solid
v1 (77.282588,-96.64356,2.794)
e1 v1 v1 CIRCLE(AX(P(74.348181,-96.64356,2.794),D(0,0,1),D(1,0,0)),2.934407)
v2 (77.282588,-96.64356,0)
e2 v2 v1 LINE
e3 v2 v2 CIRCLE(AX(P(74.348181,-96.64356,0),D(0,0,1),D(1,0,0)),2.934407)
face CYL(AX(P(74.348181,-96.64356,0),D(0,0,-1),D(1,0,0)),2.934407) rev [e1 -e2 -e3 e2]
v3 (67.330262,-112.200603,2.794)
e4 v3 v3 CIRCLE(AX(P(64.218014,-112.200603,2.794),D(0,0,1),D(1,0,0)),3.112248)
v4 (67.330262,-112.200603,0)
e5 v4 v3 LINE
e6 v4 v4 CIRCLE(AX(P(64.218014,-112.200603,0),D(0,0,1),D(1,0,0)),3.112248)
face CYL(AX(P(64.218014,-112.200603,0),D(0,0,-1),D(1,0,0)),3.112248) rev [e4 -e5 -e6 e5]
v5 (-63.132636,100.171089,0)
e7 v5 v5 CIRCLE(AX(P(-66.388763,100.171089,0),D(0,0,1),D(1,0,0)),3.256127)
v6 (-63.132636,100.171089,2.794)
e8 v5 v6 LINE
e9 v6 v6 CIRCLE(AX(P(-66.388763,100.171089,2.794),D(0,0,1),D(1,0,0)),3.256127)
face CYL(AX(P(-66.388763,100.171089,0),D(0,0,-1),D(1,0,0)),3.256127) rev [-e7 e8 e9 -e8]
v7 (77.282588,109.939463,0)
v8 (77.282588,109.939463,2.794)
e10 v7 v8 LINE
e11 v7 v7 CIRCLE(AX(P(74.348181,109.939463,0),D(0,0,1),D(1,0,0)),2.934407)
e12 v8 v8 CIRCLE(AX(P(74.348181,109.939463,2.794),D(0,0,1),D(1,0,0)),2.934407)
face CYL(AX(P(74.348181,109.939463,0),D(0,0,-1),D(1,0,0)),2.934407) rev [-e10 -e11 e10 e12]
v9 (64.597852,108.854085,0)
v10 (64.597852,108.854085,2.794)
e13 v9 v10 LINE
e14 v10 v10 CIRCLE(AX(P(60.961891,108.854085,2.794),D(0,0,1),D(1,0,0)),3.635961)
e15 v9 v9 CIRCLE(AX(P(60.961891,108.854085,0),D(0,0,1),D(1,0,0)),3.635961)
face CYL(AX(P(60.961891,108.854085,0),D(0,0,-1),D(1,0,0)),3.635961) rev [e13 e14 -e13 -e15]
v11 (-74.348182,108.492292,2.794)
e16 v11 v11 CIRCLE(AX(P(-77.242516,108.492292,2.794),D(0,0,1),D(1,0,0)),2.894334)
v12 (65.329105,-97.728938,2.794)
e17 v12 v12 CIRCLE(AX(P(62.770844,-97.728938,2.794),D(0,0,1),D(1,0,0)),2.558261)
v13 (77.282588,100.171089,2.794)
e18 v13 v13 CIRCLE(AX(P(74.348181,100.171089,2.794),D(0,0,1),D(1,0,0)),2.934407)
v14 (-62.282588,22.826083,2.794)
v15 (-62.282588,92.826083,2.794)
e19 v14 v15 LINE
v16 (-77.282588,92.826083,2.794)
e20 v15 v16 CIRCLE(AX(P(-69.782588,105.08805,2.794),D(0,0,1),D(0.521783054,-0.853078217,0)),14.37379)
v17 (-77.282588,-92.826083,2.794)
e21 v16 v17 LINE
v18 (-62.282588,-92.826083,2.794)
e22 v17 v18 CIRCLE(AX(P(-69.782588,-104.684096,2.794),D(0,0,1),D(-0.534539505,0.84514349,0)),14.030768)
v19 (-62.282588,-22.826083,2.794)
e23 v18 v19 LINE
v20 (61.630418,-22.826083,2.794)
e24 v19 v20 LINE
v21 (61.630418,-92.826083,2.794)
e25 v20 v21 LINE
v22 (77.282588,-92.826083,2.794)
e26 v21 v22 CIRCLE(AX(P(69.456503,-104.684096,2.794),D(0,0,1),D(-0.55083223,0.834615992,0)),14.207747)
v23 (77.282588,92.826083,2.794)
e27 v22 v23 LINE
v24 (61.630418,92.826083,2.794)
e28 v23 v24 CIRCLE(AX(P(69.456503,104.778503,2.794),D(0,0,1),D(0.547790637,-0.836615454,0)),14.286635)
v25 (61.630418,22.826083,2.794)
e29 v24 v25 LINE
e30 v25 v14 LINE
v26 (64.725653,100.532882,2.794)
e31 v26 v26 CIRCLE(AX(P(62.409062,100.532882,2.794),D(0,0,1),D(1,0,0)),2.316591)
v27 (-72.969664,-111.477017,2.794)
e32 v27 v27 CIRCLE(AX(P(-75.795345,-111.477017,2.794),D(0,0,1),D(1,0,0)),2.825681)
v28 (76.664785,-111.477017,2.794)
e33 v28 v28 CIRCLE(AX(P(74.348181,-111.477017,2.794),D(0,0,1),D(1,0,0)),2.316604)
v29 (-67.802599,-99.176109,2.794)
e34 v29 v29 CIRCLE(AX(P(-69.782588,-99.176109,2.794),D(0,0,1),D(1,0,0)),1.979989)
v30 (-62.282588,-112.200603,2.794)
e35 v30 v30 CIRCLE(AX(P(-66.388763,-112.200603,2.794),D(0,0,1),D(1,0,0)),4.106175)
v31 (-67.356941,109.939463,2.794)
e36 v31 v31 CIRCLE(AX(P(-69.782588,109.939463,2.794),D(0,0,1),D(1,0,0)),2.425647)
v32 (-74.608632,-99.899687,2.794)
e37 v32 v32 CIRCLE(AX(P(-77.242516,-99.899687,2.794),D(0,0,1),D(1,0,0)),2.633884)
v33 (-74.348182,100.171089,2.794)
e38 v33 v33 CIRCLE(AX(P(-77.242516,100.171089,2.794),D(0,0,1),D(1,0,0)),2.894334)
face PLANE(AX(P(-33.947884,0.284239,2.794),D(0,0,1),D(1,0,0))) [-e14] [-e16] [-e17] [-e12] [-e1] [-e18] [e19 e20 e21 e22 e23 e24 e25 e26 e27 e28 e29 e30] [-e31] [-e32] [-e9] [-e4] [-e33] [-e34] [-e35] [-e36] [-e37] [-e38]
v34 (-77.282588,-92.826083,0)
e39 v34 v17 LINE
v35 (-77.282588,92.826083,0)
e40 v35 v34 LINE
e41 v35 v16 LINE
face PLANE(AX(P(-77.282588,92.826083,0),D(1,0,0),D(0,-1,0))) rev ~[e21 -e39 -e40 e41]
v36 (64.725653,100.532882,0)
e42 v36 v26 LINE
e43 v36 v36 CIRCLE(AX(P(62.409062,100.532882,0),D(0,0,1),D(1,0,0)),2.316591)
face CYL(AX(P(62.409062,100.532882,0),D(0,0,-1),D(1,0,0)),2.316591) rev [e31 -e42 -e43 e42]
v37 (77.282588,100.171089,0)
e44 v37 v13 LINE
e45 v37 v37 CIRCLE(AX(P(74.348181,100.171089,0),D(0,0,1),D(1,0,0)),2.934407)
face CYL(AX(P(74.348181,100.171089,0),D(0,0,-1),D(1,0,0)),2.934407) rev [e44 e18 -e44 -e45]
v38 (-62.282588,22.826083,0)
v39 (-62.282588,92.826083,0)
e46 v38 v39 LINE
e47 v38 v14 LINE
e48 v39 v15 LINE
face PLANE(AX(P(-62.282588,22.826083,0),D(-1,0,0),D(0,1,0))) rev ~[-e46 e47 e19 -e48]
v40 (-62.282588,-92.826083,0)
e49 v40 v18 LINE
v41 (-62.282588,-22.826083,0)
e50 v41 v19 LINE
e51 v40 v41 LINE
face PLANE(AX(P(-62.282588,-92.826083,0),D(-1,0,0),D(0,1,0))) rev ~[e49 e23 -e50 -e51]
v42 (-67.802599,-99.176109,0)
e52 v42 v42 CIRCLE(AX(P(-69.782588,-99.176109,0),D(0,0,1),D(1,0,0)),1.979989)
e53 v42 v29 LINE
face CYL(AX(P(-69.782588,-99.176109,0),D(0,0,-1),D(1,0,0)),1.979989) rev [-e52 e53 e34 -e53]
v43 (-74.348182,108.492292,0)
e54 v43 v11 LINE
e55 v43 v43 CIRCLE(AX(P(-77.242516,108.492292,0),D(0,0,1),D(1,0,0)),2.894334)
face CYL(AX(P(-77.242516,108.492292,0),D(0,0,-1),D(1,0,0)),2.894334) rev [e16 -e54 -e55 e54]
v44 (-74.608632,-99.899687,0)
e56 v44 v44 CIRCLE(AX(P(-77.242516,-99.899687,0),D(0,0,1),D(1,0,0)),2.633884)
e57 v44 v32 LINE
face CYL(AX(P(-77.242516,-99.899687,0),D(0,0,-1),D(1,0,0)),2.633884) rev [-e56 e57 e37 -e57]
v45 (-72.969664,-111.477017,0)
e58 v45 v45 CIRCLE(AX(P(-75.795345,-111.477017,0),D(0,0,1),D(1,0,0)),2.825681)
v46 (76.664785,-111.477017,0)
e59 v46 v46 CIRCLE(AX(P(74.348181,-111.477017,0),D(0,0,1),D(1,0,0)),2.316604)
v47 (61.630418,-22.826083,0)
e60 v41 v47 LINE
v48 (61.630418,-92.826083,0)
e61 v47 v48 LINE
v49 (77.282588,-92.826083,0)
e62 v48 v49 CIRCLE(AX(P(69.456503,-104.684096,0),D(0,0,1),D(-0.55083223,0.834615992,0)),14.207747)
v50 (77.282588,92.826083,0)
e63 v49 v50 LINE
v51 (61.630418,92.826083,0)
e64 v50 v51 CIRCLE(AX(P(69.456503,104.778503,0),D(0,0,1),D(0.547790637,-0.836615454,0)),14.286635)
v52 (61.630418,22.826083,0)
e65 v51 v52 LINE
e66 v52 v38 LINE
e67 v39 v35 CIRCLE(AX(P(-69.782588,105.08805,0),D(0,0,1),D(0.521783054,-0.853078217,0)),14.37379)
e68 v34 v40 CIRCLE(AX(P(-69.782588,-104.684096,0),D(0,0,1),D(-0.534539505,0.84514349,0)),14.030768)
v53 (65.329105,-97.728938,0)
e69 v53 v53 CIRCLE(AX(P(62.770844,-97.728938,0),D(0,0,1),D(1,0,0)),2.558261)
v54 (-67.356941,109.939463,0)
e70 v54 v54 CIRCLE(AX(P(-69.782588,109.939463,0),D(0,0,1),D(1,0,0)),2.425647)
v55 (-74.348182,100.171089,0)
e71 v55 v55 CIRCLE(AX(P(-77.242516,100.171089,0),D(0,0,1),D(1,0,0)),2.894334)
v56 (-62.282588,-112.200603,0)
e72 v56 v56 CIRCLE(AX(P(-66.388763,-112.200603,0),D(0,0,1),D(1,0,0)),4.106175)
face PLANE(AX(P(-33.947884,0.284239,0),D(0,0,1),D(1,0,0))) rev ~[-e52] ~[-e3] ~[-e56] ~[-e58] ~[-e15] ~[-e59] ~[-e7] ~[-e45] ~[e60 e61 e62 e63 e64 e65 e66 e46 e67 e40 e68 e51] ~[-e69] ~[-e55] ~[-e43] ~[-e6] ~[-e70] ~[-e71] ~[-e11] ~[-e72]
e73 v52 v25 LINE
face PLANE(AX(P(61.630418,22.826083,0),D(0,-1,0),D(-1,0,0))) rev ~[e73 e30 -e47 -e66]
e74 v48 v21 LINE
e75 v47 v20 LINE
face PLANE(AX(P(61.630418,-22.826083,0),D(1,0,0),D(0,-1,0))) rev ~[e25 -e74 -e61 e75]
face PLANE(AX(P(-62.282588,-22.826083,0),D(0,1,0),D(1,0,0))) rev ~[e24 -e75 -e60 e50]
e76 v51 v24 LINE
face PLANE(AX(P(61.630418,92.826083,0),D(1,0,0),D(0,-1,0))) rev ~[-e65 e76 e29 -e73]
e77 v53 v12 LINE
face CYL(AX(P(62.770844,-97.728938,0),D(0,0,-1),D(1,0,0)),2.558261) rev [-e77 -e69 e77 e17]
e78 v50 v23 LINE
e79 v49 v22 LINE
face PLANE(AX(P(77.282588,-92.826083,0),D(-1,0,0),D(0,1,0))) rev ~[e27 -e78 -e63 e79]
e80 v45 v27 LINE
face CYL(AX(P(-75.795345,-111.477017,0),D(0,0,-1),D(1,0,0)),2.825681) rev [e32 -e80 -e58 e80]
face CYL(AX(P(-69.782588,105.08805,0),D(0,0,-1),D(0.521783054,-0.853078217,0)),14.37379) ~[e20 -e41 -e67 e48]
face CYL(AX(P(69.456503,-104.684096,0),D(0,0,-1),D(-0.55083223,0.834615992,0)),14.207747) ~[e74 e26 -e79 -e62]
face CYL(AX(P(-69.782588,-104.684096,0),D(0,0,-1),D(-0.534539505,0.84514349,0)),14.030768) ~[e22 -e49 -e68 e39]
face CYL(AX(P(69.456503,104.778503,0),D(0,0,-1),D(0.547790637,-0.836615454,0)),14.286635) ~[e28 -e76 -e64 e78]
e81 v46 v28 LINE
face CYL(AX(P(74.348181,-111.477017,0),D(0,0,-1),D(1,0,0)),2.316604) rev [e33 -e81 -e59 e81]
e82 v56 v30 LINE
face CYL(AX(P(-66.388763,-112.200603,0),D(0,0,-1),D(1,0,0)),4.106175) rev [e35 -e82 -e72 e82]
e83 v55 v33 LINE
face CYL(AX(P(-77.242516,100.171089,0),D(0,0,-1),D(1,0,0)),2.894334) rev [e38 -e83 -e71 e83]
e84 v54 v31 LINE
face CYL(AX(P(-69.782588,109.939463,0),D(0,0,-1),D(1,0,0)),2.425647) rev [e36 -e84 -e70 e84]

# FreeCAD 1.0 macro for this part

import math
import FreeCAD as App
import Part
import Sketcher

V = App.Vector

doc = App.newDocument("Part")
body = doc.addObject("PartDesign::Body", "Body")

sketch1 = body.newObject("Sketcher::SketchObject", "Sketch")
sketch1.AttachmentSupport = (doc.getObject("XY_Plane"), [""])
sketch1.MapMode = "FlatFace"
sketch1.addGeometry([
    Part.ArcOfCircle(Part.Circle(V(69.5, 104.8, 0), V(0, 0, 1), 14.3), math.radians(-57), math.radians(237)),
    Part.LineSegment(V(61.6, 92.8, 0), V(61.6, 22.8, 0)),
    Part.LineSegment(V(61.6, 22.8, 0), V(-62.3, 22.8, 0)),
    Part.LineSegment(V(-62.3, 22.8, 0), V(-62.3, 92.8, 0)),
    Part.ArcOfCircle(Part.Circle(V(-69.8, 105.1, 0), V(0, 0, 1), 14.4), math.radians(-59), math.radians(239)),
    Part.LineSegment(V(-77.3, 92.8, 0), V(-77.3, -92.8, 0)),
    Part.ArcOfCircle(Part.Circle(V(-69.8, -104.7, 0), V(0, 0, 1), 14), math.radians(122), math.radians(418)),
    Part.LineSegment(V(-62.3, -92.8, 0), V(-62.3, -22.8, 0)),
    Part.LineSegment(V(-62.3, -22.8, 0), V(61.6, -22.8, 0)),
    Part.LineSegment(V(61.6, -22.8, 0), V(61.6, -92.8, 0)),
    Part.ArcOfCircle(Part.Circle(V(69.5, -104.7, 0), V(0, 0, 1), 14.2), math.radians(123), math.radians(417)),
    Part.LineSegment(V(77.3, -92.8, 0), V(77.3, 92.8, 0)),
    Part.Circle(V(-75.8, -111.5, 0), V(0, 0, 1), 2.8),
    Part.Circle(V(-66.4, -112.2, 0), V(0, 0, 1), 4.1),
    Part.Circle(V(-77.2, -99.9, 0), V(0, 0, 1), 2.6),
    Part.Circle(V(-69.8, -99.2, 0), V(0, 0, 1), 2),
    Part.Circle(V(64.2, -112.2, 0), V(0, 0, 1), 3.1),
    Part.Circle(V(74.3, -111.5, 0), V(0, 0, 1), 2.3),
    Part.Circle(V(62.8, -97.7, 0), V(0, 0, 1), 2.6),
    Part.Circle(V(74.3, -96.6, 0), V(0, 0, 1), 2.9),
    Part.Circle(V(-77.2, 100.2, 0), V(0, 0, 1), 2.9),
    Part.Circle(V(-77.2, 108.5, 0), V(0, 0, 1), 2.9),
    Part.Circle(V(-66.4, 100.2, 0), V(0, 0, 1), 3.3),
    Part.Circle(V(-69.8, 109.9, 0), V(0, 0, 1), 2.4),
    Part.Circle(V(62.4, 100.5, 0), V(0, 0, 1), 2.3),
    Part.Circle(V(61, 108.9, 0), V(0, 0, 1), 3.6),
    Part.Circle(V(74.3, 100.2, 0), V(0, 0, 1), 2.9),
    Part.Circle(V(74.3, 109.9, 0), V(0, 0, 1), 2.9),
], False)
sketch1.addConstraint([
    Sketcher.Constraint("Coincident", 0, 2, 1, 1),
    Sketcher.Constraint("Coincident", 1, 2, 2, 1),
    Sketcher.Constraint("Coincident", 2, 2, 3, 1),
    Sketcher.Constraint("Coincident", 3, 2, 4, 1),
    Sketcher.Constraint("Coincident", 4, 2, 5, 1),
    Sketcher.Constraint("Coincident", 5, 2, 6, 1),
    Sketcher.Constraint("Coincident", 6, 2, 7, 1),
    Sketcher.Constraint("Coincident", 7, 2, 8, 1),
    Sketcher.Constraint("Coincident", 8, 2, 9, 1),
    Sketcher.Constraint("Coincident", 9, 2, 10, 1),
    Sketcher.Constraint("Coincident", 10, 2, 11, 1),
    Sketcher.Constraint("Coincident", 11, 2, 0, 1),
    Sketcher.Constraint("Vertical", 1),
    Sketcher.Constraint("Horizontal", 2),
    Sketcher.Constraint("Vertical", 3),
    Sketcher.Constraint("Vertical", 5),
    Sketcher.Constraint("Vertical", 7),
    Sketcher.Constraint("Horizontal", 8),
    Sketcher.Constraint("Vertical", 9),
    Sketcher.Constraint("Vertical", 11),
    Sketcher.Constraint("Equal", 20, 21),
    Sketcher.Constraint("Equal", 19, 26),
    Sketcher.Constraint("Equal", 26, 27),
    Sketcher.Constraint("Symmetric", 4, 2, 10, 2, -1, 1),
    Sketcher.Constraint("Symmetric", 3, 2, 6, 2, -1),
    Sketcher.Constraint("Symmetric", 1, 2, 8, 2, -1),
    Sketcher.Constraint("Horizontal", 6, 3, 10, 3),
    Sketcher.Constraint("Horizontal", 13, 3, 16, 3),
    Sketcher.Constraint("Horizontal", 12, 3, 17, 3),
    Sketcher.Constraint("Horizontal", 20, 3, 22, 3),
    Sketcher.Constraint("Horizontal", 22, 3, 26, 3),
    Sketcher.Constraint("Horizontal", 23, 3, 27, 3),
    Sketcher.Constraint("Horizontal", 0, 2, 3, 2),
    Sketcher.Constraint("Horizontal", 3, 2, 4, 2),
    Sketcher.Constraint("Horizontal", 5, 2, 6, 2),
    Sketcher.Constraint("Horizontal", 6, 2, 9, 2),
    Sketcher.Constraint("Horizontal", 4, 2, 11, 2),
    Sketcher.Constraint("Vertical", 6, 3, 15, 3),
    Sketcher.Constraint("Vertical", 17, 3, 19, 3),
    Sketcher.Constraint("Vertical", 14, 3, 20, 3),
    Sketcher.Constraint("Vertical", 20, 3, 21, 3),
    Sketcher.Constraint("Vertical", 13, 3, 22, 3),
    Sketcher.Constraint("Vertical", 15, 3, 23, 3),
    Sketcher.Constraint("Vertical", 19, 3, 26, 3),
    Sketcher.Constraint("Vertical", 26, 3, 27, 3),
    Sketcher.Constraint("DistanceY", 1, 2, 1, 1, 70.0),
    Sketcher.Constraint("DistanceX", 4, 2, 3, 2, 15.0),
    Sketcher.Constraint("Diameter", 12, 5.651362),
    Sketcher.Constraint("Diameter", 13, 8.21235),
    Sketcher.Constraint("Diameter", 14, 5.267768),
    Sketcher.Constraint("Diameter", 15, 3.959978),
    Sketcher.Constraint("Diameter", 18, 5.116522),
    Sketcher.Constraint("Diameter", 20, 5.788668),
    Sketcher.Constraint("Diameter", 24, 4.633182),
    Sketcher.Constraint("Radius", 4, 14.37379),
    Sketcher.Constraint("Radius", 6, 14.030768),
    Sketcher.Constraint("Diameter", 16, 6.224496),
    Sketcher.Constraint("Diameter", 17, 4.633208),
    Sketcher.Constraint("Diameter", 19, 5.868814),
    Sketcher.Constraint("Diameter", 22, 6.512254),
    Sketcher.Constraint("Diameter", 23, 4.851294),
    Sketcher.Constraint("Diameter", 25, 7.271922),
    Sketcher.Constraint("Radius", 0, 14.286635),
    Sketcher.Constraint("Radius", 10, 14.207747),
    Sketcher.Constraint("DistanceY", 0, 2, 25, 3, 16.028002),
    Sketcher.Constraint("DistanceY", 6, 3, 0, 3, 209.462598),
    Sketcher.Constraint("DistanceY", 15, 3, 20, 3, 199.347198),
    Sketcher.Constraint("DistanceY", 15, 3, 21, 3, 207.668401),
    Sketcher.Constraint("DistanceY", 0, 2, 24, 3, 7.706799),
    Sketcher.Constraint("DistanceX", 2, 2, 2, 1, 123.913006),
    Sketcher.Constraint("DistanceY", 15, 3, -1, 1, 99.176109),
    Sketcher.Constraint("DistanceX", -1, 1, 17, 3, 74.348181),
    Sketcher.Constraint("DistanceY", 18, 3, -1, 1, 97.728938),
    Sketcher.Constraint("DistanceY", 19, 3, -1, 1, 96.64356),
    Sketcher.Constraint("DistanceX", -1, 1, 25, 3, 60.961891),
    Sketcher.Constraint("DistanceY", 12, 3, 6, 3, 6.792921),
    Sketcher.Constraint("DistanceX", 12, 3, 10, 3, 145.251848),
    Sketcher.Constraint("DistanceY", 6, 3, 14, 3, 4.784409),
    Sketcher.Constraint("DistanceX", 14, 3, 12, 3, 1.447171),
    Sketcher.Constraint("DistanceX", 16, 3, 10, 3, 5.238489),
    Sketcher.Constraint("DistanceX", 18, 3, 10, 3, 6.685659),
    Sketcher.Constraint("DistanceY", 21, 3, 23, 3, 1.447171),
    Sketcher.Constraint("DistanceX", 24, 3, 0, 3, 7.047441),
    Sketcher.Constraint("DistanceY", 13, 3, 5, 2, 19.37452),
    Sketcher.Constraint("DistanceX", 13, 3, -1, 1, 66.388763),
])
pad1 = body.newObject("PartDesign::Pad", "Pad")
pad1.Profile = sketch1
pad1.Length = 2.794

doc.recompute()
